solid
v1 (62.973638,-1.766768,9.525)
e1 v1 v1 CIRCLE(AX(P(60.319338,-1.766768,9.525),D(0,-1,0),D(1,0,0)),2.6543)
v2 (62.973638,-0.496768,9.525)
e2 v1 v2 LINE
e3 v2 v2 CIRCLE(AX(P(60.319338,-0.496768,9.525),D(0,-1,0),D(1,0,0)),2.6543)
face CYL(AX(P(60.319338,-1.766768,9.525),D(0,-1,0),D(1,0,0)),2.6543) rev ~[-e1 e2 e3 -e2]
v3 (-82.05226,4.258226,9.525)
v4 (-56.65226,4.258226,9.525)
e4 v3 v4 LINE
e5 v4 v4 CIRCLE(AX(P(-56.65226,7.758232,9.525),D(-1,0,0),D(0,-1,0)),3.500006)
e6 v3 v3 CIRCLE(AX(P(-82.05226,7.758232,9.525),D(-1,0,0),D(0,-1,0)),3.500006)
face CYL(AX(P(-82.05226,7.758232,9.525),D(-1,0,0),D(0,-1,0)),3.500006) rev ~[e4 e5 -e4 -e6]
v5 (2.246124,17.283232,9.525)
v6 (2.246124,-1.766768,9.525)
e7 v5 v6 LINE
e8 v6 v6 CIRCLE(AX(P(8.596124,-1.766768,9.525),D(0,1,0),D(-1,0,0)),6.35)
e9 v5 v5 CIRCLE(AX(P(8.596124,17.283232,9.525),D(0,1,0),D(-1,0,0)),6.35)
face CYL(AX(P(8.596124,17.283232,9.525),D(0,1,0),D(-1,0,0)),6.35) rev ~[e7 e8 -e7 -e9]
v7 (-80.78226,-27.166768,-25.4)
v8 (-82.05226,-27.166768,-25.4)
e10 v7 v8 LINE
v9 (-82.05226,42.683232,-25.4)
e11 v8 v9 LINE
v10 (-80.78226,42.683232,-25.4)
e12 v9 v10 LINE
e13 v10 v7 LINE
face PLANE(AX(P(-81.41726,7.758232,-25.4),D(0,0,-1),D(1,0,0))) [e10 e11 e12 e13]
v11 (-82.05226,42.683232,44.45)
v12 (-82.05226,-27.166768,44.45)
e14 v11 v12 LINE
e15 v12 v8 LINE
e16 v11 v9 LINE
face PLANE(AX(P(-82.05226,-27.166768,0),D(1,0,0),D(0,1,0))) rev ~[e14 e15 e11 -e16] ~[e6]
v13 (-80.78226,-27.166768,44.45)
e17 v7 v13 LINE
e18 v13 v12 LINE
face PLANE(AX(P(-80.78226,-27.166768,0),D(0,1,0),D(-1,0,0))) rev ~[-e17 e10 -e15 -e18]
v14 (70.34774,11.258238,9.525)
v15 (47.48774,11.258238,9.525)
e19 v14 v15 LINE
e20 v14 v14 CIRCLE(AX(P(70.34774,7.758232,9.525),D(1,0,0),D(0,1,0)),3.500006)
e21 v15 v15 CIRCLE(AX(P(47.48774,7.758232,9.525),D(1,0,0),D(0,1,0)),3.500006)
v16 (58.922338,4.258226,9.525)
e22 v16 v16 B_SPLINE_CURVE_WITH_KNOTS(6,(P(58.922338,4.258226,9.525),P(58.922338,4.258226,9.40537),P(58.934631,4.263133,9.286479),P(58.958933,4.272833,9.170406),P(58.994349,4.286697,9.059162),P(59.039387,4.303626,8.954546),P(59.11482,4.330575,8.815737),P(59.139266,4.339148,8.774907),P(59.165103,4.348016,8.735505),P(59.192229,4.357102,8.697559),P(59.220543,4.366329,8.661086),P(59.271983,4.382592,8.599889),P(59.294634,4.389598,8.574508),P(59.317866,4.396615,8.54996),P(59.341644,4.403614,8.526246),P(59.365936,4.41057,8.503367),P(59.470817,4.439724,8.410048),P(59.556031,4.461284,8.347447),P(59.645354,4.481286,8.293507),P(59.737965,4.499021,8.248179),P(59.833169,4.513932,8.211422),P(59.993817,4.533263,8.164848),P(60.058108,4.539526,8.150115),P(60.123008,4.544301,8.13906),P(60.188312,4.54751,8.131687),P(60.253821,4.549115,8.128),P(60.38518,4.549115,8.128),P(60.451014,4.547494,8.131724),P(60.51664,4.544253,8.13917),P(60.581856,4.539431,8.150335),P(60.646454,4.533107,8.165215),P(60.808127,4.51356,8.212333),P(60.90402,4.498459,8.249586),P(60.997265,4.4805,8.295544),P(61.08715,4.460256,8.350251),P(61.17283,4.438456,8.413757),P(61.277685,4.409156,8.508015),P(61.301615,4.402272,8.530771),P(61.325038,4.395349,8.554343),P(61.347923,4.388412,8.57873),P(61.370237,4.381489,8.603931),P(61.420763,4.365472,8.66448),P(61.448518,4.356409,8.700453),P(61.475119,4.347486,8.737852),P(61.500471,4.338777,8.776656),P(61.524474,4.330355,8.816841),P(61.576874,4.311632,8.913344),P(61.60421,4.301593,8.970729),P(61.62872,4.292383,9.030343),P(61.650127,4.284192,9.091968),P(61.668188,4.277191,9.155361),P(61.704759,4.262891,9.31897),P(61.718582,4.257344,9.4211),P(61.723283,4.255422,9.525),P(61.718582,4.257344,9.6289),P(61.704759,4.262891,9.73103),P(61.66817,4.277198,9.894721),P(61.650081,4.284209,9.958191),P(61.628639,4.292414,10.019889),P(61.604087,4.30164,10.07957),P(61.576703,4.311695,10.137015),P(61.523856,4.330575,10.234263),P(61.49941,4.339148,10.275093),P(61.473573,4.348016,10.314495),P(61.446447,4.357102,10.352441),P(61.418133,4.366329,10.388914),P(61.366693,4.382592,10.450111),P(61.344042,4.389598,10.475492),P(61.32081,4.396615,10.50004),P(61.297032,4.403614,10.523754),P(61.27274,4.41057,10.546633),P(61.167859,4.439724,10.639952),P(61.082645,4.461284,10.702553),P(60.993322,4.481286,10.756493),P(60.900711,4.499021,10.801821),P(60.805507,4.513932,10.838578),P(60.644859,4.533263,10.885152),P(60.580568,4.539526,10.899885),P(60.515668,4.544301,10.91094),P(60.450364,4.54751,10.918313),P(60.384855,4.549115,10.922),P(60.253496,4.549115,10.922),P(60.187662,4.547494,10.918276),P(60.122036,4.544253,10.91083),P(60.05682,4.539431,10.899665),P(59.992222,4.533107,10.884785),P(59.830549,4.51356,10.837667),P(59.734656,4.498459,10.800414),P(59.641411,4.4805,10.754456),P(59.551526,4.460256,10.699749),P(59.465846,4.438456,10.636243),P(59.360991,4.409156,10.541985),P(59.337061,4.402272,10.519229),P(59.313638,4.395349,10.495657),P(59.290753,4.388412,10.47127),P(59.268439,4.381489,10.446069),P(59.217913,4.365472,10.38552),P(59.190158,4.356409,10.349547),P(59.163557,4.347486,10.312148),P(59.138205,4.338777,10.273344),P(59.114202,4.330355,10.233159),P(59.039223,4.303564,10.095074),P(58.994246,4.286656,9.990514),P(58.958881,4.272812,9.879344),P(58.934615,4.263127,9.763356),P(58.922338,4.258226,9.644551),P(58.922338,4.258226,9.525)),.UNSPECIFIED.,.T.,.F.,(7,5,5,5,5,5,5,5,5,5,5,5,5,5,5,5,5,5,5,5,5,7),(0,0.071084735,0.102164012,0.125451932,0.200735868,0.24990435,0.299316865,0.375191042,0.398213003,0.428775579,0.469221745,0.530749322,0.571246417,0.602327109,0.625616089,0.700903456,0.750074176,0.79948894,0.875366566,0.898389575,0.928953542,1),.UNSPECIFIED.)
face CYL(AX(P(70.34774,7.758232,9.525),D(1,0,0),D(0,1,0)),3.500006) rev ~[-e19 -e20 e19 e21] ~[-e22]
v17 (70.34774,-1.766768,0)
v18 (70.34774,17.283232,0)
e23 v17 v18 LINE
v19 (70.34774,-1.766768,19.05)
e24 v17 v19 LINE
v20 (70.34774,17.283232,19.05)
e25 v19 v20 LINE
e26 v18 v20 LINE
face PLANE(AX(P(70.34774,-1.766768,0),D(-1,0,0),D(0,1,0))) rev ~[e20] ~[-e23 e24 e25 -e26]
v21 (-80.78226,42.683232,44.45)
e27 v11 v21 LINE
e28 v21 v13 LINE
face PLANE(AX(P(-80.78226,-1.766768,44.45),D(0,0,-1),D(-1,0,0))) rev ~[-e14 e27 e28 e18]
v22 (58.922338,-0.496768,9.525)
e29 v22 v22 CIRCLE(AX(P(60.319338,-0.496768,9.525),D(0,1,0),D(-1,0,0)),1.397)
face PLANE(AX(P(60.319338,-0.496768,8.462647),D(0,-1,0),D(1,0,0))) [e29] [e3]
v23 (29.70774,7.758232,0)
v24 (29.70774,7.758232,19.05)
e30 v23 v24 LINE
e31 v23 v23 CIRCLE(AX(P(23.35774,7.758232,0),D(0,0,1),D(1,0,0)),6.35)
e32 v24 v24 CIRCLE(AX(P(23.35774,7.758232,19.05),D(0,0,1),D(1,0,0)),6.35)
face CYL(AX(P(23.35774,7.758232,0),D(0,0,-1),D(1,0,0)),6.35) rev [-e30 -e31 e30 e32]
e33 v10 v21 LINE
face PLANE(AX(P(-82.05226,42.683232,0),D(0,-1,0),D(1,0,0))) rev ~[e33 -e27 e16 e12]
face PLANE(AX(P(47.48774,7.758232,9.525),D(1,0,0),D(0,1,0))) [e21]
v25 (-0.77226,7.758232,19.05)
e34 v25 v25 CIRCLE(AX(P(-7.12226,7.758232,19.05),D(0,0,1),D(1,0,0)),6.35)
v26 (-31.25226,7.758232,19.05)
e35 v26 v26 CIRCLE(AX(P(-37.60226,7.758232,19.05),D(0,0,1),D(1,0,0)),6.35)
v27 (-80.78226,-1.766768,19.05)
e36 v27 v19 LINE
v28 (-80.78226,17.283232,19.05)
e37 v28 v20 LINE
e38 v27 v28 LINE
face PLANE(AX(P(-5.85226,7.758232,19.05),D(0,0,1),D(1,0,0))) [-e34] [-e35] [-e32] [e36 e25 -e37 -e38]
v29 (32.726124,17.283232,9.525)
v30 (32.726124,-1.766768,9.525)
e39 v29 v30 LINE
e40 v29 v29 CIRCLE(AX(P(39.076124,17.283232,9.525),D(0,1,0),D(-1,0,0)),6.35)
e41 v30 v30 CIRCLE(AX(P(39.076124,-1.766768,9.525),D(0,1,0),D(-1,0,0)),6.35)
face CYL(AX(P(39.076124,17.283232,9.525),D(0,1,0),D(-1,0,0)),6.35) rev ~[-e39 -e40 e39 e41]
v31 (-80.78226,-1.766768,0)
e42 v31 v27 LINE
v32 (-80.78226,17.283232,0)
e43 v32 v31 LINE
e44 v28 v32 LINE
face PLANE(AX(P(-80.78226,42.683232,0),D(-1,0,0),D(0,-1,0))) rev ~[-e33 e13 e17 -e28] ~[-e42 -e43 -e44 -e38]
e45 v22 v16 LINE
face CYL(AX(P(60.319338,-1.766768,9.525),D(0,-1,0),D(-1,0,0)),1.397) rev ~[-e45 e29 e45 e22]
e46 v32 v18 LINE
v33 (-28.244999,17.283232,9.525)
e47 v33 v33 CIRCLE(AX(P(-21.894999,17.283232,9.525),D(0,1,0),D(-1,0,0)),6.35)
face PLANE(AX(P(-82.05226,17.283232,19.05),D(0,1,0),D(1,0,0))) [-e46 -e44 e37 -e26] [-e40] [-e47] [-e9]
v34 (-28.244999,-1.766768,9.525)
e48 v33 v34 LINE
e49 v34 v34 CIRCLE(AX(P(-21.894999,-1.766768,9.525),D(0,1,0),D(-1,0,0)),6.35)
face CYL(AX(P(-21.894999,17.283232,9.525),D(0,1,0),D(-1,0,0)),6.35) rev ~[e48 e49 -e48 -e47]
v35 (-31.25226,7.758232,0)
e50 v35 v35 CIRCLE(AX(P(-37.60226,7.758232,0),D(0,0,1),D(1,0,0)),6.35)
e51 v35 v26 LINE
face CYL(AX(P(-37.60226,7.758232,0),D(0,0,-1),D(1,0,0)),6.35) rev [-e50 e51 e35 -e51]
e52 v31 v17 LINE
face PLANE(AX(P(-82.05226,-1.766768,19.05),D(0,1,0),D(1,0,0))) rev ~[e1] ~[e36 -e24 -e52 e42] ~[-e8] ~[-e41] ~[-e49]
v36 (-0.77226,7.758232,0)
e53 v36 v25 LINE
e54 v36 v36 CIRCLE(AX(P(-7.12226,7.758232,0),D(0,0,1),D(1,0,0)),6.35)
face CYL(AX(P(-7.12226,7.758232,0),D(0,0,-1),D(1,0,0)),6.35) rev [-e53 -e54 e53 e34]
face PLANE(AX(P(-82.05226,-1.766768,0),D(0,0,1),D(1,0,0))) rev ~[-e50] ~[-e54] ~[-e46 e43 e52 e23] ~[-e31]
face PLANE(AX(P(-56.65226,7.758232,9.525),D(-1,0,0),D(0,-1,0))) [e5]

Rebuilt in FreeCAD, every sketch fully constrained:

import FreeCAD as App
import Part
import Sketcher

V = App.Vector
Q = App.Units.Quantity

doc = App.newDocument("Part")
params = doc.addObject("Spreadsheet::Sheet", "Params")
for row, (alias, value) in enumerate([
    ("sketch1_diameter", "0.5 in"),
    ("sketch1_width", "6 in"),
    ("sketch1_height", "0.75 in"),
    ("pad1_length", "0.75 in"),
    ("sketch2_diameter", "0.5 in"),
    ("pocket1_length", "1 in"),
    ("pocket2_length", "1 in"),
    ("pocket3_length", "0.9 in"),
    ("sketch5_width", "0.05 in"),
    ("sketch5_height", "0.75 in"),
    ("pad2_length", "1 in"),
    ("sketch6_width", "0.05 in"),
    ("sketch6_height", "1.75 in"),
    ("pad3_length", "1 in"),
    ("sketch7_width", "0.05 in"),
    ("sketch7_height", "1.75 in"),
    ("pad4_length", "1 in"),
    ("sketch8_width", "0.05 in"),
    ("sketch8_height", "2.75 in"),
    ("pad5_length", "1 in"),
    ("sketch9_diameter", "0.11 in"),
    ("pocket4_length", "0.3 in"),
    ("sketch10_diameter", "0.11 in"),
    ("sketch10_diameter2", "0.209 in"),
    ("pocket5_length", "0.05 in"),
], start=1):
    params.set(f"A{row}", alias)
    params.set(f"B{row}", "=" + value)
    params.setAlias(f"B{row}", alias)

body = doc.addObject("PartDesign::Body", "Body")

sketch1 = body.newObject("Sketcher::SketchObject", "Sketch")
sketch1.AttachmentSupport = (doc.getObject("XY_Plane"), [""])
sketch1.MapMode = "FlatFace"
sketch1.addGeometry(Part.LineSegment(V(-82.05226, 17.283232, 0), V(-82.05226, -1.766768, 0)), False)
sketch1.addGeometry(Part.LineSegment(V(-82.05226, -1.766768, 0), V(70.34774, -1.766768, 0)), False)
sketch1.addGeometry(Part.LineSegment(V(70.34774, -1.766768, 0), V(70.34774, 17.283232, 0)), False)
sketch1.addGeometry(Part.LineSegment(V(70.34774, 17.283232, 0), V(-82.05226, 17.283232, 0)), False)
sketch1.addGeometry(Part.Circle(V(-37.60226, 7.758232, 0), V(0, 0, 1), 6.35), False)
sketch1.addGeometry(Part.Circle(V(-7.12226, 7.758232, 0), V(0, 0, 1), 6.35), False)
sketch1.addGeometry(Part.Circle(V(23.35774, 7.758232, 0), V(0, 0, 1), 6.35), False)
sketch1.addConstraint(Sketcher.Constraint("Coincident", 0, 2, 1, 1))
sketch1.addConstraint(Sketcher.Constraint("Coincident", 1, 2, 2, 1))
sketch1.addConstraint(Sketcher.Constraint("Coincident", 2, 2, 3, 1))
sketch1.addConstraint(Sketcher.Constraint("Coincident", 3, 2, 0, 1))
sketch1.addConstraint(Sketcher.Constraint("Vertical", 0))
sketch1.addConstraint(Sketcher.Constraint("Horizontal", 1))
sketch1.addConstraint(Sketcher.Constraint("Vertical", 2))
sketch1.addConstraint(Sketcher.Constraint("Horizontal", 3))
sketch1.addConstraint(Sketcher.Constraint("Equal", 4, 5))
sketch1.addConstraint(Sketcher.Constraint("Equal", 5, 6))
sketch1.addConstraint(Sketcher.Constraint("Horizontal", 4, 3, 5, 3))
sketch1.addConstraint(Sketcher.Constraint("Horizontal", 5, 3, 6, 3))
sketch1.addConstraint(Sketcher.Constraint("Diameter", 4, Q("0.5 in")))
sketch1.addConstraint(Sketcher.Constraint("DistanceX", 1, 1, 1, 2, Q("6 in")))
sketch1.addConstraint(Sketcher.Constraint("DistanceY", 0, 2, 0, 1, Q("0.75 in")))
sketch1.addConstraint(Sketcher.Constraint("DistanceX", 4, 3, 5, 3, Q("1.2 in")))
sketch1.addConstraint(Sketcher.Constraint("DistanceX", 5, 3, 6, 3, Q("1.2 in")))
sketch1.addConstraint(Sketcher.Constraint("DistanceX", 0, 2, 4, 3, Q("1.75 in")))
sketch1.addConstraint(Sketcher.Constraint("DistanceY", 0, 2, 4, 3, Q("0.375 in")))
sketch1.addConstraint(Sketcher.Constraint("DistanceX", 4, 3, -1, 1, Q("37.60226 mm")))
sketch1.addConstraint(Sketcher.Constraint("DistanceY", -1, 1, 4, 3, Q("7.758232 mm")))
sketch1.setExpression("Constraints[12]", "Params.sketch1_diameter")
sketch1.setExpression("Constraints[13]", "Params.sketch1_width")
sketch1.setExpression("Constraints[14]", "Params.sketch1_height")
pad1 = body.newObject("PartDesign::Pad", "Pad")
pad1.Profile = sketch1
pad1.setExpression("Length", "Params.pad1_length")

sketch2 = body.newObject("Sketcher::SketchObject", "Sketch001")
sketch2.AttachmentSupport = (doc.getObject("XZ_Plane"), [""])
sketch2.MapMode = "FlatFace"
sketch2.AttachmentOffset = App.Placement(V(0, 0, -17.283232), App.Rotation())
sketch2.addGeometry(Part.Circle(V(-21.894999, 9.525, 0), V(0, 0, 1), 6.35), False)
sketch2.addGeometry(Part.Circle(V(39.076124, 9.525, 0), V(0, 0, 1), 6.35), False)
sketch2.addGeometry(Part.Circle(V(8.596124, 9.525, 0), V(0, 0, 1), 6.35), False)
sketch2.addConstraint(Sketcher.Constraint("Equal", 0, 1))
sketch2.addConstraint(Sketcher.Constraint("Equal", 1, 2))
sketch2.addConstraint(Sketcher.Constraint("Horizontal", 0, 3, 1, 3))
sketch2.addConstraint(Sketcher.Constraint("Horizontal", 1, 3, 2, 3))
sketch2.addConstraint(Sketcher.Constraint("Diameter", 0, Q("0.5 in")))
sketch2.addConstraint(Sketcher.Constraint("DistanceX", 2, 3, 1, 3, Q("1.2 in")))
sketch2.addConstraint(Sketcher.Constraint("DistanceY", -1, 1, 0, 3, Q("0.375 in")))
sketch2.addConstraint(Sketcher.Constraint("DistanceX", 0, 3, -1, 1, Q("21.894999 mm")))
sketch2.addConstraint(Sketcher.Constraint("DistanceX", -1, 1, 1, 3, Q("39.076124 mm")))
sketch2.setExpression("Constraints[4]", "Params.sketch2_diameter")
pocket1 = body.newObject("PartDesign::Pocket", "Pocket")
pocket1.Profile = sketch2
pocket1.setExpression("Length", "Params.pocket1_length")
pocket1.Reversed = True

sketch3 = body.newObject("Sketcher::SketchObject", "Sketch002")
sketch3.AttachmentSupport = (doc.getObject("YZ_Plane"), [""])
sketch3.MapMode = "FlatFace"
sketch3.AttachmentOffset = App.Placement(V(0, 0, -82.05226), App.Rotation())
sketch3.addGeometry(Part.Circle(V(7.758232, 9.525, 0), V(0, 0, 1), 3.500006), False)
sketch3.addConstraint(Sketcher.Constraint("Diameter", 0, Q("7.000011 mm")))
sketch3.addConstraint(Sketcher.Constraint("DistanceY", -1, 1, 0, 3, Q("0.375 in")))
sketch3.addConstraint(Sketcher.Constraint("DistanceX", -1, 1, 0, 3, Q("7.758232 mm")))
pocket2 = body.newObject("PartDesign::Pocket", "Pocket001")
pocket2.Profile = sketch3
pocket2.setExpression("Length", "Params.pocket2_length")
pocket2.Reversed = True

sketch4 = body.newObject("Sketcher::SketchObject", "Sketch003")
sketch4.AttachmentSupport = (doc.getObject("YZ_Plane"), [""])
sketch4.MapMode = "FlatFace"
sketch4.AttachmentOffset = App.Placement(V(0, 0, 70.34774), App.Rotation())
sketch4.addGeometry(Part.Circle(V(7.758232, 9.525, 0), V(0, 0, 1), 3.500006), False)
sketch4.addConstraint(Sketcher.Constraint("Diameter", 0, Q("7.000011 mm")))
sketch4.addConstraint(Sketcher.Constraint("DistanceY", -1, 1, 0, 3, Q("0.375 in")))
sketch4.addConstraint(Sketcher.Constraint("DistanceX", -1, 1, 0, 3, Q("7.758232 mm")))
pocket3 = body.newObject("PartDesign::Pocket", "Pocket002")
pocket3.Profile = sketch4
pocket3.setExpression("Length", "Params.pocket3_length")

sketch5 = body.newObject("Sketcher::SketchObject", "Sketch004")
sketch5.AttachmentSupport = (doc.getObject("XY_Plane"), [""])
sketch5.MapMode = "FlatFace"
sketch5.AttachmentOffset = App.Placement(V(0, 0, 0.75 * 25.4), App.Rotation())
sketch5.addGeometry(Part.LineSegment(V(-82.05226, 17.283232, 0), V(-82.05226, -1.766768, 0)), False)
sketch5.addGeometry(Part.LineSegment(V(-82.05226, -1.766768, 0), V(-80.78226, -1.766768, 0)), False)
sketch5.addGeometry(Part.LineSegment(V(-80.78226, -1.766768, 0), V(-80.78226, 17.283232, 0)), False)
sketch5.addGeometry(Part.LineSegment(V(-80.78226, 17.283232, 0), V(-82.05226, 17.283232, 0)), False)
sketch5.addConstraint(Sketcher.Constraint("Coincident", 0, 2, 1, 1))
sketch5.addConstraint(Sketcher.Constraint("Coincident", 1, 2, 2, 1))
sketch5.addConstraint(Sketcher.Constraint("Coincident", 2, 2, 3, 1))
sketch5.addConstraint(Sketcher.Constraint("Coincident", 3, 2, 0, 1))
sketch5.addConstraint(Sketcher.Constraint("Vertical", 0))
sketch5.addConstraint(Sketcher.Constraint("Horizontal", 1))
sketch5.addConstraint(Sketcher.Constraint("Vertical", 2))
sketch5.addConstraint(Sketcher.Constraint("Horizontal", 3))
sketch5.addConstraint(Sketcher.Constraint("DistanceX", 1, 1, 1, 2, Q("0.05 in")))
sketch5.addConstraint(Sketcher.Constraint("DistanceY", 0, 2, 0, 1, Q("0.75 in")))
sketch5.addConstraint(Sketcher.Constraint("DistanceX", 0, 2, -1, 1, Q("82.05226 mm")))
sketch5.addConstraint(Sketcher.Constraint("DistanceY", 0, 2, -1, 1, Q("1.766768 mm")))
sketch5.setExpression("Constraints[8]", "Params.sketch5_width")
sketch5.setExpression("Constraints[9]", "Params.sketch5_height")
pad2 = body.newObject("PartDesign::Pad", "Pad001")
pad2.Profile = sketch5
pad2.setExpression("Length", "Params.pad2_length")

sketch6 = body.newObject("Sketcher::SketchObject", "Sketch005")
sketch6.AttachmentSupport = (doc.getObject("XZ_Plane"), [""])
sketch6.MapMode = "FlatFace"
sketch6.AttachmentOffset = App.Placement(V(0, 0, -17.283232), App.Rotation())
sketch6.addGeometry(Part.LineSegment(V(-80.78226, 44.45, 0), V(-80.78226, 0, 0)), False)
sketch6.addGeometry(Part.LineSegment(V(-80.78226, 0, 0), V(-82.05226, 0, 0)), False)
sketch6.addGeometry(Part.LineSegment(V(-82.05226, 0, 0), V(-82.05226, 44.45, 0)), False)
sketch6.addGeometry(Part.LineSegment(V(-82.05226, 44.45, 0), V(-80.78226, 44.45, 0)), False)
sketch6.addConstraint(Sketcher.Constraint("Coincident", 0, 2, 1, 1))
sketch6.addConstraint(Sketcher.Constraint("Coincident", 1, 2, 2, 1))
sketch6.addConstraint(Sketcher.Constraint("Coincident", 2, 2, 3, 1))
sketch6.addConstraint(Sketcher.Constraint("Coincident", 3, 2, 0, 1))
sketch6.addConstraint(Sketcher.Constraint("Vertical", 0))
sketch6.addConstraint(Sketcher.Constraint("Horizontal", 1))
sketch6.addConstraint(Sketcher.Constraint("Vertical", 2))
sketch6.addConstraint(Sketcher.Constraint("Horizontal", 3))
sketch6.addConstraint(Sketcher.Constraint("PointOnObject", 0, 2, -1))
sketch6.addConstraint(Sketcher.Constraint("DistanceX", 1, 2, 1, 1, Q("0.05 in")))
sketch6.addConstraint(Sketcher.Constraint("DistanceY", 0, 2, 0, 1, Q("1.75 in")))
sketch6.addConstraint(Sketcher.Constraint("DistanceX", 0, 2, -1, 1, Q("80.78226 mm")))
sketch6.setExpression("Constraints[9]", "Params.sketch6_width")
sketch6.setExpression("Constraints[10]", "Params.sketch6_height")
pad3 = body.newObject("PartDesign::Pad", "Pad002")
pad3.Profile = sketch6
pad3.setExpression("Length", "Params.pad3_length")
pad3.Reversed = True

sketch7 = body.newObject("Sketcher::SketchObject", "Sketch006")
sketch7.AttachmentSupport = (doc.getObject("XZ_Plane"), [""])
sketch7.MapMode = "FlatFace"
sketch7.AttachmentOffset = App.Placement(V(0, 0, 1.766768), App.Rotation())
sketch7.addGeometry(Part.LineSegment(V(-80.78226, 0, 0), V(-80.78226, 44.45, 0)), False)
sketch7.addGeometry(Part.LineSegment(V(-80.78226, 44.45, 0), V(-82.05226, 44.45, 0)), False)
sketch7.addGeometry(Part.LineSegment(V(-82.05226, 44.45, 0), V(-82.05226, 0, 0)), False)
sketch7.addGeometry(Part.LineSegment(V(-82.05226, 0, 0), V(-80.78226, 0, 0)), False)
sketch7.addConstraint(Sketcher.Constraint("Coincident", 0, 2, 1, 1))
sketch7.addConstraint(Sketcher.Constraint("Coincident", 1, 2, 2, 1))
sketch7.addConstraint(Sketcher.Constraint("Coincident", 2, 2, 3, 1))
sketch7.addConstraint(Sketcher.Constraint("Coincident", 3, 2, 0, 1))
sketch7.addConstraint(Sketcher.Constraint("Vertical", 0))
sketch7.addConstraint(Sketcher.Constraint("Horizontal", 1))
sketch7.addConstraint(Sketcher.Constraint("Vertical", 2))
sketch7.addConstraint(Sketcher.Constraint("Horizontal", 3))
sketch7.addConstraint(Sketcher.Constraint("PointOnObject", 2, 2, -1))
sketch7.addConstraint(Sketcher.Constraint("DistanceX", 1, 2, 1, 1, Q("0.05 in")))
sketch7.addConstraint(Sketcher.Constraint("DistanceY", 0, 1, 0, 2, Q("1.75 in")))
sketch7.addConstraint(Sketcher.Constraint("DistanceX", 0, 2, -1, 1, Q("80.78226 mm")))
sketch7.setExpression("Constraints[9]", "Params.sketch7_width")
sketch7.setExpression("Constraints[10]", "Params.sketch7_height")
pad4 = body.newObject("PartDesign::Pad", "Pad003")
pad4.Profile = sketch7
pad4.setExpression("Length", "Params.pad4_length")

sketch8 = body.newObject("Sketcher::SketchObject", "Sketch007")
sketch8.AttachmentSupport = (doc.getObject("XY_Plane"), [""])
sketch8.MapMode = "FlatFace"
sketch8.addGeometry(Part.LineSegment(V(-80.78226, -27.166768, 0), V(-82.05226, -27.166768, 0)), False)
sketch8.addGeometry(Part.LineSegment(V(-82.05226, -27.166768, 0), V(-82.05226, 42.683232, 0)), False)
sketch8.addGeometry(Part.LineSegment(V(-82.05226, 42.683232, 0), V(-80.78226, 42.683232, 0)), False)
sketch8.addGeometry(Part.LineSegment(V(-80.78226, 42.683232, 0), V(-80.78226, -27.166768, 0)), False)
sketch8.addConstraint(Sketcher.Constraint("Coincident", 0, 2, 1, 1))
sketch8.addConstraint(Sketcher.Constraint("Coincident", 1, 2, 2, 1))
sketch8.addConstraint(Sketcher.Constraint("Coincident", 2, 2, 3, 1))
sketch8.addConstraint(Sketcher.Constraint("Coincident", 3, 2, 0, 1))
sketch8.addConstraint(Sketcher.Constraint("Horizontal", 0))
sketch8.addConstraint(Sketcher.Constraint("Vertical", 1))
sketch8.addConstraint(Sketcher.Constraint("Horizontal", 2))
sketch8.addConstraint(Sketcher.Constraint("Vertical", 3))
sketch8.addConstraint(Sketcher.Constraint("DistanceX", 0, 2, 0, 1, Q("0.05 in")))
sketch8.addConstraint(Sketcher.Constraint("DistanceY", 1, 1, 1, 2, Q("2.75 in")))
sketch8.addConstraint(Sketcher.Constraint("DistanceX", 0, 2, -1, 1, Q("82.05226 mm")))
sketch8.addConstraint(Sketcher.Constraint("DistanceY", 0, 2, -1, 1, Q("27.166768 mm")))
sketch8.setExpression("Constraints[8]", "Params.sketch8_width")
sketch8.setExpression("Constraints[9]", "Params.sketch8_height")
pad5 = body.newObject("PartDesign::Pad", "Pad004")
pad5.Profile = sketch8
pad5.setExpression("Length", "Params.pad5_length")
pad5.Reversed = True

sketch9 = body.newObject("Sketcher::SketchObject", "Sketch008")
sketch9.AttachmentSupport = (doc.getObject("XZ_Plane"), [""])
sketch9.MapMode = "FlatFace"
sketch9.AttachmentOffset = App.Placement(V(0, 0, 1.766768), App.Rotation())
sketch9.addGeometry(Part.Circle(V(60.319338, 9.525, 0), V(0, 0, 1), 1.397), False)
sketch9.addConstraint(Sketcher.Constraint("Diameter", 0, Q("0.11 in")))
sketch9.addConstraint(Sketcher.Constraint("DistanceY", -1, 1, 0, 3, Q("0.375 in")))
sketch9.addConstraint(Sketcher.Constraint("DistanceX", -1, 1, 0, 3, Q("60.319338 mm")))
sketch9.setExpression("Constraints[0]", "Params.sketch9_diameter")
pocket4 = body.newObject("PartDesign::Pocket", "Pocket003")
pocket4.Profile = sketch9
pocket4.setExpression("Length", "Params.pocket4_length")

sketch10 = body.newObject("Sketcher::SketchObject", "Sketch009")
sketch10.AttachmentSupport = (doc.getObject("XZ_Plane"), [""])
sketch10.MapMode = "FlatFace"
sketch10.AttachmentOffset = App.Placement(V(0, 0, 1.766768), App.Rotation())
sketch10.addGeometry(Part.Circle(V(60.319338, 9.525, 0), V(0, 0, 1), 2.6543), False)
sketch10.addGeometry(Part.Circle(V(60.319338, 9.525, 0), V(0, 0, 1), 1.397), False)
sketch10.addConstraint(Sketcher.Constraint("Coincident", 1, 3, 0, 3))
sketch10.addConstraint(Sketcher.Constraint("Diameter", 1, Q("0.11 in")))
sketch10.addConstraint(Sketcher.Constraint("Diameter", 0, Q("0.209 in")))
sketch10.addConstraint(Sketcher.Constraint("DistanceY", -1, 1, 0, 3, Q("0.375 in")))
sketch10.addConstraint(Sketcher.Constraint("DistanceX", -1, 1, 0, 3, Q("60.319338 mm")))
sketch10.setExpression("Constraints[1]", "Params.sketch10_diameter")
sketch10.setExpression("Constraints[2]", "Params.sketch10_diameter2")
pocket5 = body.newObject("PartDesign::Pocket", "Pocket004")
pocket5.Profile = sketch10
pocket5.setExpression("Length", "Params.pocket5_length")

doc.recompute()
